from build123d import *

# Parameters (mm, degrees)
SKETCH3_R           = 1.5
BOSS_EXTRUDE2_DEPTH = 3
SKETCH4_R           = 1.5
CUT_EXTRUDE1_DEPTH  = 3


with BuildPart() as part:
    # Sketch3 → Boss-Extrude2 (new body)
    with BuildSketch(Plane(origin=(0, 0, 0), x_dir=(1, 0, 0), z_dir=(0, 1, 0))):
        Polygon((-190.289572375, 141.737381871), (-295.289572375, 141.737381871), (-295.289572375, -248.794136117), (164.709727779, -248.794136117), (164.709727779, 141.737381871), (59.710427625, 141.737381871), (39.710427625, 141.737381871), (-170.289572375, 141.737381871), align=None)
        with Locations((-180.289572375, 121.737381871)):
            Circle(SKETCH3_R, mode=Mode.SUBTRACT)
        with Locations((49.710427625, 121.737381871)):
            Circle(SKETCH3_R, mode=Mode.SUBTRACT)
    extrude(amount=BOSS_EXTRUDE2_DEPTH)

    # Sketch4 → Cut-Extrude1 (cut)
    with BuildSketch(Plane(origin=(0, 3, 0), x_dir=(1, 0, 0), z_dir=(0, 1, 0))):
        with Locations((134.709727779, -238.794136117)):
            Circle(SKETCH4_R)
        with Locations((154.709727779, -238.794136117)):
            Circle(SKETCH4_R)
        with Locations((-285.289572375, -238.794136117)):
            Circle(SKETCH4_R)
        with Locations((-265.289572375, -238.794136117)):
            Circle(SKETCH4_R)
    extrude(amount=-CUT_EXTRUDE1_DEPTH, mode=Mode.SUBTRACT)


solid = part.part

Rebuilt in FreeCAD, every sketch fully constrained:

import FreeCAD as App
import Part
import Sketcher
from FreeCAD import Vector
Q = App.Units.Quantity


def add_polygon(sketch, points):
    """Adds a closed chain of lines whose ends are joined by coincident constraints."""
    first, n = sketch.GeometryCount, len(points)
    for a, b in zip(points, points[1:] + points[:1]):
        sketch.addGeometry(Part.LineSegment(App.Vector(*a, 0), App.Vector(*b, 0)), False)
    for i in range(n):
        sketch.addConstraint(Sketcher.Constraint("Coincident", first + i, 2, first + (i + 1) % n, 1))

doc = App.newDocument("Part")
params = doc.addObject("Spreadsheet::Sheet", "Params")
for row, (alias, value) in enumerate([
    ("sketch1_diameter", "3 mm"),
    ("pad1_length", "3 mm"),
    ("sketch2_diameter", "3 mm"),
    ("pocket1_length", "3 mm"),
], start=1):
    params.set(f"A{row}", alias)
    params.set(f"B{row}", "=" + value)
    params.setAlias(f"B{row}", alias)

body = doc.addObject("PartDesign::Body", "Body")

# Sketch on XZ plane
sketch1 = body.newObject("Sketcher::SketchObject", "Sketch")
sketch1.AttachmentSupport = (doc.getObject("XZ_Plane"), [""])
sketch1.MapMode = "FlatFace"
add_polygon(sketch1, [(-295.289572, -141.737382), (-295.289572, 248.794136), (164.709728, 248.794136), (164.709728, -141.737382)])  # lines 0-3
sketch1.addGeometry(Part.Circle(Vector(-180.289572, -121.737382, 0), Vector(0, 0, 1), 1.5), False)  # 4
sketch1.addGeometry(Part.Circle(Vector(49.710428, -121.737382, 0), Vector(0, 0, 1), 1.5), False)  # 5
sketch1.addConstraint(Sketcher.Constraint("Vertical", 0))
sketch1.addConstraint(Sketcher.Constraint("Horizontal", 1))
sketch1.addConstraint(Sketcher.Constraint("Vertical", 2))
sketch1.addConstraint(Sketcher.Constraint("Horizontal", 3))
sketch1.addConstraint(Sketcher.Constraint("Equal", 4, 5))
sketch1.addConstraint(Sketcher.Constraint("Horizontal", 4, 3, 5, 3))
sketch1.addConstraint(Sketcher.Constraint("Diameter", 4, Q("3 mm")))
sketch1.addConstraint(Sketcher.Constraint("DistanceX", 4, 3, 5, 3, Q("230 mm")))
sketch1.addConstraint(Sketcher.Constraint("DistanceX", 0, 2, 4, 3, Q("115 mm")))
sketch1.addConstraint(Sketcher.Constraint("DistanceY", 2, 2, 5, 3, Q("20 mm")))
sketch1.addConstraint(Sketcher.Constraint("DistanceX", 1, 1, 1, 2, Q("459.9993 mm")))
sketch1.addConstraint(Sketcher.Constraint("DistanceY", 0, 1, 0, 2, Q("390.531518 mm")))
sketch1.addConstraint(Sketcher.Constraint("DistanceY", 4, 3, -1, 1, Q("121.737382 mm")))
sketch1.addConstraint(Sketcher.Constraint("DistanceX", 4, 3, -1, 1, Q("180.289572 mm")))
sketch1.setExpression("Constraints[10]", "Params.sketch1_diameter")
pad1 = body.newObject("PartDesign::Pad", "Pad")
pad1.Profile = sketch1
pad1.setExpression("Length", "Params.pad1_length")
pad1.Reversed = True

# Sketch on XZ plane
sketch2 = body.newObject("Sketcher::SketchObject", "Sketch001")
sketch2.AttachmentSupport = (doc.getObject("XZ_Plane"), [""])
sketch2.MapMode = "FlatFace"
sketch2.AttachmentOffset = App.Placement(Vector(0, 0, -3), App.Rotation())
sketch2.addGeometry(Part.Circle(Vector(134.709728, 238.794136, 0), Vector(0, 0, 1), 1.5), False)
sketch2.addGeometry(Part.Circle(Vector(154.709728, 238.794136, 0), Vector(0, 0, 1), 1.5), False)
sketch2.addGeometry(Part.Circle(Vector(-285.289572, 238.794136, 0), Vector(0, 0, 1), 1.5), False)
sketch2.addGeometry(Part.Circle(Vector(-265.289572, 238.794136, 0), Vector(0, 0, 1), 1.5), False)
sketch2.addConstraint(Sketcher.Constraint("Equal", 0, 1))
sketch2.addConstraint(Sketcher.Constraint("Equal", 1, 2))
sketch2.addConstraint(Sketcher.Constraint("Equal", 2, 3))
sketch2.addConstraint(Sketcher.Constraint("Horizontal", 0, 3, 1, 3))
sketch2.addConstraint(Sketcher.Constraint("Horizontal", 1, 3, 2, 3))
sketch2.addConstraint(Sketcher.Constraint("Horizontal", 2, 3, 3, 3))
sketch2.addConstraint(Sketcher.Constraint("Diameter", 0, Q("3 mm")))
sketch2.addConstraint(Sketcher.Constraint("DistanceX", 0, 3, 1, 3, Q("20 mm")))
sketch2.addConstraint(Sketcher.Constraint("DistanceX", 2, 3, 3, 3, Q("20 mm")))
sketch2.addConstraint(Sketcher.Constraint("DistanceX", 2, 3, 0, 3, Q("419.9993 mm")))
sketch2.addConstraint(Sketcher.Constraint("DistanceX", -1, 1, 0, 3, Q("134.709728 mm")))
sketch2.addConstraint(Sketcher.Constraint("DistanceY", -1, 1, 0, 3, Q("238.794136 mm")))
sketch2.setExpression("Constraints[6]", "Params.sketch2_diameter")
pocket1 = body.newObject("PartDesign::Pocket", "Pocket")
pocket1.Profile = sketch2
pocket1.setExpression("Length", "Params.pocket1_length")
pocket1.Reversed = True

doc.recompute()
